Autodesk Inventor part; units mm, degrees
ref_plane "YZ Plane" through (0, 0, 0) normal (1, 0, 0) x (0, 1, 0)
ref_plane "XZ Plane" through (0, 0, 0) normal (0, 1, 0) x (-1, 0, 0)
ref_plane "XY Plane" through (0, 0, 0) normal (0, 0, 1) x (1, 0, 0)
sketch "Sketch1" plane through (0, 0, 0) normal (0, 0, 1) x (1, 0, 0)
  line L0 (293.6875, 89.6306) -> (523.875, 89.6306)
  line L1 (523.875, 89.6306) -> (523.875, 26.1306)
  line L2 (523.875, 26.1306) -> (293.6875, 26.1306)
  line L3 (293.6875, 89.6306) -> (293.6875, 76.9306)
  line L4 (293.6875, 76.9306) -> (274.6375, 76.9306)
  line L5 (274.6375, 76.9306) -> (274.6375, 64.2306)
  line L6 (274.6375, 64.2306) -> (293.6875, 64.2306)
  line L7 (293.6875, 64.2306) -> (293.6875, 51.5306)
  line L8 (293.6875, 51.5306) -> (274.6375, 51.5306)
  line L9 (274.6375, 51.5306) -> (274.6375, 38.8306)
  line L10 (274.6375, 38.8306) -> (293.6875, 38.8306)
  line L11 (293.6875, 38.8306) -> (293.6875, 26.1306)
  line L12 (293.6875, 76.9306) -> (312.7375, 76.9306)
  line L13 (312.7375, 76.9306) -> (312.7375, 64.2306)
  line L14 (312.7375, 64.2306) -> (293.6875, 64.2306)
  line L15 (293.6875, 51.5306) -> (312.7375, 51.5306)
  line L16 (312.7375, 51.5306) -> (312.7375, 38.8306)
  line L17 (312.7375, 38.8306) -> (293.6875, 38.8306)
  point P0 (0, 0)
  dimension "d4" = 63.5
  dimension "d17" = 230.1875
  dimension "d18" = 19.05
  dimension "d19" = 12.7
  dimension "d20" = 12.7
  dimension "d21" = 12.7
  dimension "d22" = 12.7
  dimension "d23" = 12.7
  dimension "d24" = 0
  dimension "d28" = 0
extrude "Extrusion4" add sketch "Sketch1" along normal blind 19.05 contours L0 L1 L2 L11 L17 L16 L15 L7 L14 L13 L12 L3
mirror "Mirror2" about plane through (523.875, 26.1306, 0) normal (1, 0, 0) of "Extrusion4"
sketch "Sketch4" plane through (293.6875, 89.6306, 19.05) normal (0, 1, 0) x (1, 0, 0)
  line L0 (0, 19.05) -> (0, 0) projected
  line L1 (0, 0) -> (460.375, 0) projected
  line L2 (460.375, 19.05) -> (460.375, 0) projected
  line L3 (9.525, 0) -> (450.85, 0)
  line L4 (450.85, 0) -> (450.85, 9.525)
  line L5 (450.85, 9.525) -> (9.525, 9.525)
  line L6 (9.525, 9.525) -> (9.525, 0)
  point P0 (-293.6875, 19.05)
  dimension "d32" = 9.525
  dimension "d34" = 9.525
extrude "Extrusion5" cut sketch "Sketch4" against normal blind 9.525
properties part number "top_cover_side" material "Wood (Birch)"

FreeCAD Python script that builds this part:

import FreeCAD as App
import Part
import Sketcher
Q = App.Units.Quantity

doc = App.newDocument("Part")
body = doc.addObject("PartDesign::Body", "Body")

sketch1 = body.newObject("Sketcher::SketchObject", "Sketch")
sketch1.AttachmentSupport = (doc.getObject("XY_Plane"), [""])
sketch1.MapMode = "FlatFace"
sketch1.addGeometry(Part.LineSegment(App.Vector(523.875, 89.6306, 0), App.Vector(293.6875, 89.6306, 0)), False)
sketch1.addGeometry(Part.LineSegment(App.Vector(293.6875, 89.6306, 0), App.Vector(293.6875, 76.9306, 0)), False)
sketch1.addGeometry(Part.LineSegment(App.Vector(293.6875, 76.9306, 0), App.Vector(312.7375, 76.9306, 0)), False)
sketch1.addGeometry(Part.LineSegment(App.Vector(312.7375, 76.9306, 0), App.Vector(312.7375, 64.2306, 0)), False)
sketch1.addGeometry(Part.LineSegment(App.Vector(312.7375, 64.2306, 0), App.Vector(293.6875, 64.2306, 0)), False)
sketch1.addGeometry(Part.LineSegment(App.Vector(293.6875, 64.2306, 0), App.Vector(293.6875, 51.5306, 0)), False)
sketch1.addGeometry(Part.LineSegment(App.Vector(293.6875, 51.5306, 0), App.Vector(312.7375, 51.5306, 0)), False)
sketch1.addGeometry(Part.LineSegment(App.Vector(312.7375, 51.5306, 0), App.Vector(312.7375, 38.8306, 0)), False)
sketch1.addGeometry(Part.LineSegment(App.Vector(312.7375, 38.8306, 0), App.Vector(293.6875, 38.8306, 0)), False)
sketch1.addGeometry(Part.LineSegment(App.Vector(293.6875, 38.8306, 0), App.Vector(293.6875, 26.1306, 0)), False)
sketch1.addGeometry(Part.LineSegment(App.Vector(293.6875, 26.1306, 0), App.Vector(523.875, 26.1306, 0)), False)
sketch1.addGeometry(Part.LineSegment(App.Vector(523.875, 26.1306, 0), App.Vector(523.875, 89.6306, 0)), False)
sketch1.addConstraint(Sketcher.Constraint("Coincident", 0, 2, 1, 1))
sketch1.addConstraint(Sketcher.Constraint("Coincident", 1, 2, 2, 1))
sketch1.addConstraint(Sketcher.Constraint("Coincident", 2, 2, 3, 1))
sketch1.addConstraint(Sketcher.Constraint("Coincident", 3, 2, 4, 1))
sketch1.addConstraint(Sketcher.Constraint("Coincident", 4, 2, 5, 1))
sketch1.addConstraint(Sketcher.Constraint("Coincident", 5, 2, 6, 1))
sketch1.addConstraint(Sketcher.Constraint("Coincident", 6, 2, 7, 1))
sketch1.addConstraint(Sketcher.Constraint("Coincident", 7, 2, 8, 1))
sketch1.addConstraint(Sketcher.Constraint("Coincident", 8, 2, 9, 1))
sketch1.addConstraint(Sketcher.Constraint("Coincident", 9, 2, 10, 1))
sketch1.addConstraint(Sketcher.Constraint("Coincident", 10, 2, 11, 1))
sketch1.addConstraint(Sketcher.Constraint("Coincident", 11, 2, 0, 1))
sketch1.addConstraint(Sketcher.Constraint("Horizontal", 0))
sketch1.addConstraint(Sketcher.Constraint("Vertical", 1))
sketch1.addConstraint(Sketcher.Constraint("Horizontal", 2))
sketch1.addConstraint(Sketcher.Constraint("Vertical", 3))
sketch1.addConstraint(Sketcher.Constraint("Horizontal", 4))
sketch1.addConstraint(Sketcher.Constraint("Vertical", 5))
sketch1.addConstraint(Sketcher.Constraint("Horizontal", 6))
sketch1.addConstraint(Sketcher.Constraint("Vertical", 7))
sketch1.addConstraint(Sketcher.Constraint("Horizontal", 8))
sketch1.addConstraint(Sketcher.Constraint("Vertical", 9))
sketch1.addConstraint(Sketcher.Constraint("Horizontal", 10))
sketch1.addConstraint(Sketcher.Constraint("Vertical", 11))
sketch1.addConstraint(Sketcher.Constraint("Vertical", 1, 2, 4, 2))
sketch1.addConstraint(Sketcher.Constraint("Vertical", 3, 2, 6, 2))
sketch1.addConstraint(Sketcher.Constraint("Vertical", 5, 2, 8, 2))
sketch1.addConstraint(Sketcher.Constraint("Equal", 1, 3))
sketch1.addConstraint(Sketcher.Constraint("Equal", 3, 5))
sketch1.addConstraint(Sketcher.Constraint("Equal", 5, 7))
sketch1.addConstraint(Sketcher.Constraint("Equal", 7, 9))
sketch1.addConstraint(Sketcher.Constraint("DistanceY", 1, 2, 1, 1, Q("0.5 in")))
sketch1.addConstraint(Sketcher.Constraint("DistanceX", 2, 1, 2, 2, Q("0.75 in")))
sketch1.addConstraint(Sketcher.Constraint("DistanceX", 0, 2, 0, 1, Q("9.0625 in")))
sketch1.addConstraint(Sketcher.Constraint("DistanceX", -1, 1, 0, 2, Q("11.5625 in")))
sketch1.addConstraint(Sketcher.Constraint("DistanceY", -1, 1, 0, 2, Q("89.6306 mm")))
pad1 = body.newObject("PartDesign::Pad", "Pad")
pad1.Profile = sketch1
pad1.Length = Q("0.75 in")
doc.recompute()

datumplane = body.newObject("PartDesign::Plane", "DatumPlane")
datumplane.AttachmentSupport = (doc.getObject("YZ_Plane"), [""])
datumplane.MapMode = "FlatFace"
datumplane.AttachmentOffset = App.Placement(App.Vector(0, 0, 20.625 * 25.4), App.Rotation())
mirrored = body.newObject("PartDesign::Mirrored", "Mirrored")
mirrored.Originals = [pad1]
mirrored.MirrorPlane = (datumplane, [""])
body.Tip = mirrored

sketch2 = body.newObject("Sketcher::SketchObject", "Sketch001")
sketch2.AttachmentSupport = (doc.getObject("XZ_Plane"), [""])
sketch2.MapMode = "FlatFace"
sketch2.AttachmentOffset = App.Placement(App.Vector(0, 0, -89.6306), App.Rotation())
sketch2.addGeometry(Part.LineSegment(App.Vector(303.2125, 9.525, 0), App.Vector(303.2125, 19.05, 0)), False)
sketch2.addGeometry(Part.LineSegment(App.Vector(303.2125, 19.05, 0), App.Vector(744.5375, 19.05, 0)), False)
sketch2.addGeometry(Part.LineSegment(App.Vector(744.5375, 19.05, 0), App.Vector(744.5375, 9.525, 0)), False)
sketch2.addGeometry(Part.LineSegment(App.Vector(744.5375, 9.525, 0), App.Vector(303.2125, 9.525, 0)), False)
sketch2.addConstraint(Sketcher.Constraint("Coincident", 0, 2, 1, 1))
sketch2.addConstraint(Sketcher.Constraint("Coincident", 1, 2, 2, 1))
sketch2.addConstraint(Sketcher.Constraint("Coincident", 2, 2, 3, 1))
sketch2.addConstraint(Sketcher.Constraint("Coincident", 3, 2, 0, 1))
sketch2.addConstraint(Sketcher.Constraint("Vertical", 0))
sketch2.addConstraint(Sketcher.Constraint("Horizontal", 1))
sketch2.addConstraint(Sketcher.Constraint("Vertical", 2))
sketch2.addConstraint(Sketcher.Constraint("Horizontal", 3))
sketch2.addConstraint(Sketcher.Constraint("DistanceY", 0, 1, 0, 2, Q("0.375 in")))
sketch2.addConstraint(Sketcher.Constraint("DistanceY", -1, 1, 2, 2, Q("0.375 in")))
sketch2.addConstraint(Sketcher.Constraint("DistanceX", 1, 1, 1, 2, Q("17.375 in")))
sketch2.addConstraint(Sketcher.Constraint("DistanceX", -1, 1, 0, 2, Q("11.9375 in")))
pocket1 = body.newObject("PartDesign::Pocket", "Pocket")
pocket1.Profile = sketch2
pocket1.Length = Q("0.375 in")
pocket1.Reversed = True

doc.recompute()
